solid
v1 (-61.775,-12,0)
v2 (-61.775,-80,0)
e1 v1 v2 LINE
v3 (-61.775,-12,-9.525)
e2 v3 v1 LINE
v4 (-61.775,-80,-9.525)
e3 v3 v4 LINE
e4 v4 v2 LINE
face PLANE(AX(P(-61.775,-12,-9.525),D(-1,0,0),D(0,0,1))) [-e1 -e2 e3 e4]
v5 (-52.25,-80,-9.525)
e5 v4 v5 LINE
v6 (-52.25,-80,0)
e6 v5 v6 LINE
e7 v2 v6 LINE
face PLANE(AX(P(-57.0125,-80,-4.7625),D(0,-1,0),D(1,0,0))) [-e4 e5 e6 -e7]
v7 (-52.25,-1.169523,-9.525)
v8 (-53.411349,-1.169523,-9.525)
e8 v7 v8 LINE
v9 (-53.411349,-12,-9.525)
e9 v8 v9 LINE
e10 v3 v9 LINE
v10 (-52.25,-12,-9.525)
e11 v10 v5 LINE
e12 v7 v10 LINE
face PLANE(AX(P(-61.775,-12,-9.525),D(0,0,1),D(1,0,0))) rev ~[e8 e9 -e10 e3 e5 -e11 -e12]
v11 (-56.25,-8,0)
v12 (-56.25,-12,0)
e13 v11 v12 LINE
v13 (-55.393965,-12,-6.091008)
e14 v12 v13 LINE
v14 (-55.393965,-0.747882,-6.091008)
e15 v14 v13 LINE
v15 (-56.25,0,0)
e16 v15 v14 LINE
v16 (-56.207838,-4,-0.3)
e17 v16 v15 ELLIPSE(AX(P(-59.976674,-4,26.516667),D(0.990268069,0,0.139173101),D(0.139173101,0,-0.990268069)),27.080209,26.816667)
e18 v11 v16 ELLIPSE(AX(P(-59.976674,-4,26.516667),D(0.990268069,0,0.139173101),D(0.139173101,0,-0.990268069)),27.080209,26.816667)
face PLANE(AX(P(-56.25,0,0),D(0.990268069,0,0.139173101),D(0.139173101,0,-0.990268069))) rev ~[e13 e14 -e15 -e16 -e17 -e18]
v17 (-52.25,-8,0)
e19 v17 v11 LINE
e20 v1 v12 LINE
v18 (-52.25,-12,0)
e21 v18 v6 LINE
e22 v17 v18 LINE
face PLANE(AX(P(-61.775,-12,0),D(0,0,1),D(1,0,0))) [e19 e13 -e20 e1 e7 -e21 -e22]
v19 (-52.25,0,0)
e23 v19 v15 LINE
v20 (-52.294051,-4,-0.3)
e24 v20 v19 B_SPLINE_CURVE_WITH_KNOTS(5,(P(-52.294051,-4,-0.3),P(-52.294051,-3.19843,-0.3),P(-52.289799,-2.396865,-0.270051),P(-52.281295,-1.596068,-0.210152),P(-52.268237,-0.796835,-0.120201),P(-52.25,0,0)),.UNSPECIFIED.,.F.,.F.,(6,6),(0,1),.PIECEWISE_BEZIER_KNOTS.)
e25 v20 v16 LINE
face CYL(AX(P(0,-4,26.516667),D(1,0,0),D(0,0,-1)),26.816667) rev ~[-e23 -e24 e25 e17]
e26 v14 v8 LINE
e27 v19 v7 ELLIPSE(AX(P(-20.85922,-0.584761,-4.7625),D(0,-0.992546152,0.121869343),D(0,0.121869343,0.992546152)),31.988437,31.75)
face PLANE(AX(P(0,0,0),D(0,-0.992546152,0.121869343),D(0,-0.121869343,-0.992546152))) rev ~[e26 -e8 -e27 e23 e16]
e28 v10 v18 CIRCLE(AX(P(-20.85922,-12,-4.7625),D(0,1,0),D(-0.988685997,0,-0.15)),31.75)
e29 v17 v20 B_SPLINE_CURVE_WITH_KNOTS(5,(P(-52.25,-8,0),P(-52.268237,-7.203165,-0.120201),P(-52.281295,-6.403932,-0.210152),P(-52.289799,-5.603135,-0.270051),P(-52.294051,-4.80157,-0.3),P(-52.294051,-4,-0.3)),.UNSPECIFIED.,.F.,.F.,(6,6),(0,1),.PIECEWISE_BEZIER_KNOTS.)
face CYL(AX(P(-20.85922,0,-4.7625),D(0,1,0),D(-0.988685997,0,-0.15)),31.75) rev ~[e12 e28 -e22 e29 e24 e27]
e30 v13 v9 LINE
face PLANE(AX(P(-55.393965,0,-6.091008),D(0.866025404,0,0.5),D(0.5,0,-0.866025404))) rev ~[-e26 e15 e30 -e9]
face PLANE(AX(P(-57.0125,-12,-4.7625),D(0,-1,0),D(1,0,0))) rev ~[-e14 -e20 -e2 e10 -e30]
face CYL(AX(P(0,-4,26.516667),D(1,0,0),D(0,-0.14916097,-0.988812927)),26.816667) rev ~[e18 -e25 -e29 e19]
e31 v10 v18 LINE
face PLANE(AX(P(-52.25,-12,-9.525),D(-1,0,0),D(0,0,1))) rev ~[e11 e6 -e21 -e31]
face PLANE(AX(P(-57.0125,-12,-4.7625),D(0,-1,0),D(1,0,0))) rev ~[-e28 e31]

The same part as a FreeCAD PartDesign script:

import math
import FreeCAD as App
import Part
import Sketcher
Q = App.Units.Quantity

doc = App.newDocument("Part")
params = doc.addObject("Spreadsheet::Sheet", "Params")
for row, (alias, value) in enumerate([
    ("sketch1_width", "4 mm"),
    ("sketch1_radius", "31.75 mm"),
    ("pad1_length", "12 mm"),
    ("pad2_length", "68 mm"),
    ("pocket1_length", "57.25 mm"),
    ("sketch4_width", "8 mm"),
    ("pocket2_length", "57.25 mm"),
], start=1):
    params.set(f"A{row}", alias)
    params.set(f"B{row}", "=" + value)
    params.setAlias(f"B{row}", alias)

body = doc.addObject("PartDesign::Body", "Body")

# Sketch on XZ plane
sketch1 = body.newObject("Sketcher::SketchObject", "Sketch")
sketch1.AttachmentSupport = (doc.getObject("XZ_Plane"), [""])
sketch1.MapMode = "FlatFace"
sketch1.addGeometry([
    Part.LineSegment(App.Vector(-52.2, 0, 0), App.Vector(-56.2, 0, 0)),  # 0
    Part.LineSegment(App.Vector(-56.2, 0, 0), App.Vector(-55.4, -6.1, 0)),  # 1
    Part.LineSegment(App.Vector(-55.4, -6.1, 0), App.Vector(-53.4, -9.5, 0)),  # 2
    Part.LineSegment(App.Vector(-53.4, -9.5, 0), App.Vector(-52.2, -9.5, 0)),  # 3
    Part.ArcOfCircle(Part.Circle(App.Vector(-20.9, -4.8, 0), App.Vector(0, 0, 1), 31.8), math.radians(171.37), math.radians(188.63)),  # 4
], False)
sketch1.addConstraint([
    Sketcher.Constraint("Coincident", 0, 2, 1, 1),
    Sketcher.Constraint("Coincident", 1, 2, 2, 1),
    Sketcher.Constraint("Coincident", 2, 2, 3, 1),
    Sketcher.Constraint("Coincident", 3, 2, 4, 2),
    Sketcher.Constraint("Coincident", 4, 1, 0, 1),
    Sketcher.Constraint("Horizontal", 0),
    Sketcher.Constraint("Horizontal", 3),
    Sketcher.Constraint("PointOnObject", 0, 2, -1),
    Sketcher.Constraint("Vertical", 3, 2, 4, 1),
    Sketcher.Constraint("DistanceX", 0, 2, 0, 1, Q("4 mm")),
    Sketcher.Constraint("Angle", 1, Q("-82 deg")),
    Sketcher.Constraint("Angle", 2, Q("-60 deg")),
    Sketcher.Constraint("Radius", 4, Q("31.75 mm")),
    Sketcher.Constraint("DistanceX", 0, 2, -1, 1, Q("56.25 mm")),
    Sketcher.Constraint("DistanceY", 2, 2, -1, 1, Q("9.525 mm")),
    Sketcher.Constraint("DistanceX", 3, 1, 3, 2, Q("1.161349 mm")),
])
sketch1.setExpression("Constraints[9]", "Params.sketch1_width")
sketch1.setExpression("Constraints[12]", "Params.sketch1_radius")
pad1 = body.newObject("PartDesign::Pad", "Pad")
pad1.Profile = sketch1
pad1.setExpression("Length", "Params.pad1_length")

# Sketch on XZ plane
sketch2 = body.newObject("Sketcher::SketchObject", "Sketch001")
sketch2.AttachmentSupport = (doc.getObject("XZ_Plane"), [""])
sketch2.MapMode = "FlatFace"
sketch2.AttachmentOffset = App.Placement(App.Vector(0, 0, 12), App.Rotation())
sketch2.addGeometry([
    Part.LineSegment(App.Vector(-62, 0, 0), App.Vector(-62, -10, 0)),
    Part.LineSegment(App.Vector(-62, -10, 0), App.Vector(-52, -10, 0)),
    Part.LineSegment(App.Vector(-52, -10, 0), App.Vector(-52, 0, 0)),
    Part.LineSegment(App.Vector(-52, 0, 0), App.Vector(-62, 0, 0)),
], False)
sketch2.addConstraint([
    Sketcher.Constraint("Coincident", 0, 2, 1, 1),
    Sketcher.Constraint("Coincident", 1, 2, 2, 1),
    Sketcher.Constraint("Coincident", 2, 2, 3, 1),
    Sketcher.Constraint("Coincident", 3, 2, 0, 1),
    Sketcher.Constraint("Vertical", 0),
    Sketcher.Constraint("Horizontal", 1),
    Sketcher.Constraint("Vertical", 2),
    Sketcher.Constraint("Horizontal", 3),
    Sketcher.Constraint("PointOnObject", 2, 2, -1),
    Sketcher.Constraint("Equal", 3, 0),
    Sketcher.Constraint("DistanceX", 1, 1, 1, 2, Q("9.525 mm")),
    Sketcher.Constraint("DistanceX", 1, 2, -1, 1, Q("52.25 mm")),
])
pad2 = body.newObject("PartDesign::Pad", "Pad001")
pad2.Profile = sketch2
pad2.setExpression("Length", "Params.pad2_length")

# Sketch on YZ plane
sketch3 = body.newObject("Sketcher::SketchObject", "Sketch002")
sketch3.AttachmentSupport = (doc.getObject("YZ_Plane"), [""])
sketch3.MapMode = "FlatFace"
sketch3.addGeometry([
    Part.LineSegment(App.Vector(0, -9.5, 0), App.Vector(0, 0, 0)),
    Part.LineSegment(App.Vector(0, 0, 0), App.Vector(-1.2, -9.5, 0)),
    Part.LineSegment(App.Vector(-1.2, -9.5, 0), App.Vector(0, -9.5, 0)),
], False)
sketch3.addConstraint([
    Sketcher.Constraint("Coincident", 0, 2, 1, 1),
    Sketcher.Constraint("Coincident", 1, 2, 2, 1),
    Sketcher.Constraint("Coincident", 2, 2, 0, 1),
    Sketcher.Constraint("Vertical", 0),
    Sketcher.Constraint("Horizontal", 2),
    Sketcher.Constraint("Coincident", 0, 2, -1, 1),
    Sketcher.Constraint("Angle", 1, Q("-97 deg")),
    Sketcher.Constraint("DistanceY", 0, 1, 0, 2, Q("9.525 mm")),
])
pocket1 = body.newObject("PartDesign::Pocket", "Pocket")
pocket1.Profile = sketch3
pocket1.setExpression("Length", "Params.pocket1_length")

# Sketch on YZ plane
sketch4 = body.newObject("Sketcher::SketchObject", "Sketch003")
sketch4.AttachmentSupport = (doc.getObject("YZ_Plane"), [""])
sketch4.MapMode = "FlatFace"
sketch4.addGeometry([
    Part.ArcOfCircle(Part.Circle(App.Vector(-4, 26.5, 0), App.Vector(0, 0, 1), 26.8), math.radians(-98.58), math.radians(-90)),
    Part.ArcOfCircle(Part.Circle(App.Vector(-4, 26.5, 0), App.Vector(0, 0, 1), 26.8), math.radians(-90), math.radians(-81.42)),
    Part.LineSegment(App.Vector(0, 0, 0), App.Vector(-8, 0, 0)),
], False)
sketch4.addConstraint([
    Sketcher.Constraint("Tangent", 0, 2, 1, 1),
    Sketcher.Constraint("Coincident", 1, 2, 2, 1),
    Sketcher.Constraint("Coincident", 2, 2, 0, 1),
    Sketcher.Constraint("Horizontal", 2),
    Sketcher.Constraint("Coincident", 1, 2, -1, 1),
    Sketcher.Constraint("Equal", 0, 1),
    Sketcher.Constraint("Vertical", 1, 3, 0, 2),
    Sketcher.Constraint("DistanceX", 2, 2, 2, 1, Q("8 mm")),
    Sketcher.Constraint("DistanceY", 0, 2, -1, 1, Q("0.3 mm")),
])
sketch4.setExpression("Constraints[7]", "Params.sketch4_width")
pocket2 = body.newObject("PartDesign::Pocket", "Pocket001")
pocket2.Profile = sketch4
pocket2.setExpression("Length", "Params.pocket2_length")

doc.recompute()
